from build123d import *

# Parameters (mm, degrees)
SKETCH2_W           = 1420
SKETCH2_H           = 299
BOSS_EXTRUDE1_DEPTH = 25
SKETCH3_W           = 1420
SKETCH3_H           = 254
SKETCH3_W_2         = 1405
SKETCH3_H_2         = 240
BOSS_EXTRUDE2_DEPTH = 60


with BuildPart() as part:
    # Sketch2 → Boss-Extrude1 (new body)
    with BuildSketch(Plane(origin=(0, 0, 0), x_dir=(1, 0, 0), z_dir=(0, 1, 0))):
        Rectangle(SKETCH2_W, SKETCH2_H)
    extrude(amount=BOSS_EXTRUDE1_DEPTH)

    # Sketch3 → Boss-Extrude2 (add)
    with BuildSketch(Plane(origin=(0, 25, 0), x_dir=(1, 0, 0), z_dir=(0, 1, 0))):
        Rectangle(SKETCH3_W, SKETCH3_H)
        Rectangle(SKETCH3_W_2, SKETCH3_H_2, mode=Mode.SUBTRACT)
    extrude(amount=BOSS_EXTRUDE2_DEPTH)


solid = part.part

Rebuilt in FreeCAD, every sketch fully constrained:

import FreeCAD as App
import Part
import Sketcher
Q = App.Units.Quantity


def add_polygon(sketch, points):
    """Adds a closed chain of lines whose ends are joined by coincident constraints."""
    first, n = sketch.GeometryCount, len(points)
    for a, b in zip(points, points[1:] + points[:1]):
        sketch.addGeometry(Part.LineSegment(App.Vector(*a, 0), App.Vector(*b, 0)), False)
    for i in range(n):
        sketch.addConstraint(Sketcher.Constraint("Coincident", first + i, 2, first + (i + 1) % n, 1))

doc = App.newDocument("Part")
params = doc.addObject("Spreadsheet::Sheet", "Params")
for row, (alias, value) in enumerate([
    ("sketch1_width", "1420 mm"),
    ("sketch1_height", "299 mm"),
    ("pad1_length", "25 mm"),
    ("sketch2_width", "1420 mm"),
    ("sketch2_width2", "1405 mm"),
    ("sketch2_height", "254 mm"),
    ("sketch2_height2", "240 mm"),
    ("pad2_length", "60 mm"),
], start=1):
    params.set(f"A{row}", alias)
    params.set(f"B{row}", "=" + value)
    params.setAlias(f"B{row}", alias)

body = doc.addObject("PartDesign::Body", "Body")

sketch1 = body.newObject("Sketcher::SketchObject", "Sketch")
sketch1.AttachmentSupport = (doc.getObject("XZ_Plane"), [""])
sketch1.MapMode = "FlatFace"
add_polygon(sketch1, [(-710, -149.5), (-710, 149.5), (710, 149.5), (710, -149.5)])
sketch1.addConstraint(Sketcher.Constraint("Vertical", 0))
sketch1.addConstraint(Sketcher.Constraint("Horizontal", 1))
sketch1.addConstraint(Sketcher.Constraint("Vertical", 2))
sketch1.addConstraint(Sketcher.Constraint("Horizontal", 3))
sketch1.addConstraint(Sketcher.Constraint("Symmetric", 0, 2, 2, 2, -1, 1))
sketch1.addConstraint(Sketcher.Constraint("DistanceX", 1, 1, 1, 2, Q("1420 mm")))
sketch1.addConstraint(Sketcher.Constraint("DistanceY", 0, 1, 0, 2, Q("299 mm")))
sketch1.setExpression("Constraints[9]", "Params.sketch1_width")
sketch1.setExpression("Constraints[10]", "Params.sketch1_height")
pad1 = body.newObject("PartDesign::Pad", "Pad")
pad1.Profile = sketch1
pad1.setExpression("Length", "Params.pad1_length")
pad1.Reversed = True

sketch2 = body.newObject("Sketcher::SketchObject", "Sketch001")
sketch2.AttachmentSupport = (doc.getObject("XZ_Plane"), [""])
sketch2.MapMode = "FlatFace"
sketch2.AttachmentOffset = App.Placement(App.Vector(0, 0, -25), App.Rotation())
add_polygon(sketch2, [(-710, -127), (-710, 127), (710, 127), (710, -127)])
add_polygon(sketch2, [(702.5, 120), (-702.5, 120), (-702.5, -120), (702.5, -120)])
sketch2.addConstraint(Sketcher.Constraint("Vertical", 0))
sketch2.addConstraint(Sketcher.Constraint("Horizontal", 1))
sketch2.addConstraint(Sketcher.Constraint("Vertical", 2))
sketch2.addConstraint(Sketcher.Constraint("Horizontal", 3))
sketch2.addConstraint(Sketcher.Constraint("Horizontal", 4))
sketch2.addConstraint(Sketcher.Constraint("Vertical", 5))
sketch2.addConstraint(Sketcher.Constraint("Horizontal", 6))
sketch2.addConstraint(Sketcher.Constraint("Vertical", 7))
sketch2.addConstraint(Sketcher.Constraint("Symmetric", 0, 2, 2, 2, -1, 1))
sketch2.addConstraint(Sketcher.Constraint("Symmetric", 4, 2, 6, 2, -1, 1))
sketch2.addConstraint(Sketcher.Constraint("DistanceX", 1, 1, 1, 2, Q("1420 mm")))
sketch2.addConstraint(Sketcher.Constraint("DistanceX", 4, 2, 4, 1, Q("1405 mm")))
sketch2.addConstraint(Sketcher.Constraint("DistanceY", 0, 1, 0, 2, Q("254 mm")))
sketch2.addConstraint(Sketcher.Constraint("DistanceY", 5, 2, 5, 1, Q("240 mm")))
sketch2.setExpression("Constraints[18]", "Params.sketch2_width")
sketch2.setExpression("Constraints[19]", "Params.sketch2_width2")
sketch2.setExpression("Constraints[20]", "Params.sketch2_height")
sketch2.setExpression("Constraints[21]", "Params.sketch2_height2")
pad2 = body.newObject("PartDesign::Pad", "Pad001")
pad2.Profile = sketch2
pad2.setExpression("Length", "Params.pad2_length")
pad2.Reversed = True

doc.recompute()
